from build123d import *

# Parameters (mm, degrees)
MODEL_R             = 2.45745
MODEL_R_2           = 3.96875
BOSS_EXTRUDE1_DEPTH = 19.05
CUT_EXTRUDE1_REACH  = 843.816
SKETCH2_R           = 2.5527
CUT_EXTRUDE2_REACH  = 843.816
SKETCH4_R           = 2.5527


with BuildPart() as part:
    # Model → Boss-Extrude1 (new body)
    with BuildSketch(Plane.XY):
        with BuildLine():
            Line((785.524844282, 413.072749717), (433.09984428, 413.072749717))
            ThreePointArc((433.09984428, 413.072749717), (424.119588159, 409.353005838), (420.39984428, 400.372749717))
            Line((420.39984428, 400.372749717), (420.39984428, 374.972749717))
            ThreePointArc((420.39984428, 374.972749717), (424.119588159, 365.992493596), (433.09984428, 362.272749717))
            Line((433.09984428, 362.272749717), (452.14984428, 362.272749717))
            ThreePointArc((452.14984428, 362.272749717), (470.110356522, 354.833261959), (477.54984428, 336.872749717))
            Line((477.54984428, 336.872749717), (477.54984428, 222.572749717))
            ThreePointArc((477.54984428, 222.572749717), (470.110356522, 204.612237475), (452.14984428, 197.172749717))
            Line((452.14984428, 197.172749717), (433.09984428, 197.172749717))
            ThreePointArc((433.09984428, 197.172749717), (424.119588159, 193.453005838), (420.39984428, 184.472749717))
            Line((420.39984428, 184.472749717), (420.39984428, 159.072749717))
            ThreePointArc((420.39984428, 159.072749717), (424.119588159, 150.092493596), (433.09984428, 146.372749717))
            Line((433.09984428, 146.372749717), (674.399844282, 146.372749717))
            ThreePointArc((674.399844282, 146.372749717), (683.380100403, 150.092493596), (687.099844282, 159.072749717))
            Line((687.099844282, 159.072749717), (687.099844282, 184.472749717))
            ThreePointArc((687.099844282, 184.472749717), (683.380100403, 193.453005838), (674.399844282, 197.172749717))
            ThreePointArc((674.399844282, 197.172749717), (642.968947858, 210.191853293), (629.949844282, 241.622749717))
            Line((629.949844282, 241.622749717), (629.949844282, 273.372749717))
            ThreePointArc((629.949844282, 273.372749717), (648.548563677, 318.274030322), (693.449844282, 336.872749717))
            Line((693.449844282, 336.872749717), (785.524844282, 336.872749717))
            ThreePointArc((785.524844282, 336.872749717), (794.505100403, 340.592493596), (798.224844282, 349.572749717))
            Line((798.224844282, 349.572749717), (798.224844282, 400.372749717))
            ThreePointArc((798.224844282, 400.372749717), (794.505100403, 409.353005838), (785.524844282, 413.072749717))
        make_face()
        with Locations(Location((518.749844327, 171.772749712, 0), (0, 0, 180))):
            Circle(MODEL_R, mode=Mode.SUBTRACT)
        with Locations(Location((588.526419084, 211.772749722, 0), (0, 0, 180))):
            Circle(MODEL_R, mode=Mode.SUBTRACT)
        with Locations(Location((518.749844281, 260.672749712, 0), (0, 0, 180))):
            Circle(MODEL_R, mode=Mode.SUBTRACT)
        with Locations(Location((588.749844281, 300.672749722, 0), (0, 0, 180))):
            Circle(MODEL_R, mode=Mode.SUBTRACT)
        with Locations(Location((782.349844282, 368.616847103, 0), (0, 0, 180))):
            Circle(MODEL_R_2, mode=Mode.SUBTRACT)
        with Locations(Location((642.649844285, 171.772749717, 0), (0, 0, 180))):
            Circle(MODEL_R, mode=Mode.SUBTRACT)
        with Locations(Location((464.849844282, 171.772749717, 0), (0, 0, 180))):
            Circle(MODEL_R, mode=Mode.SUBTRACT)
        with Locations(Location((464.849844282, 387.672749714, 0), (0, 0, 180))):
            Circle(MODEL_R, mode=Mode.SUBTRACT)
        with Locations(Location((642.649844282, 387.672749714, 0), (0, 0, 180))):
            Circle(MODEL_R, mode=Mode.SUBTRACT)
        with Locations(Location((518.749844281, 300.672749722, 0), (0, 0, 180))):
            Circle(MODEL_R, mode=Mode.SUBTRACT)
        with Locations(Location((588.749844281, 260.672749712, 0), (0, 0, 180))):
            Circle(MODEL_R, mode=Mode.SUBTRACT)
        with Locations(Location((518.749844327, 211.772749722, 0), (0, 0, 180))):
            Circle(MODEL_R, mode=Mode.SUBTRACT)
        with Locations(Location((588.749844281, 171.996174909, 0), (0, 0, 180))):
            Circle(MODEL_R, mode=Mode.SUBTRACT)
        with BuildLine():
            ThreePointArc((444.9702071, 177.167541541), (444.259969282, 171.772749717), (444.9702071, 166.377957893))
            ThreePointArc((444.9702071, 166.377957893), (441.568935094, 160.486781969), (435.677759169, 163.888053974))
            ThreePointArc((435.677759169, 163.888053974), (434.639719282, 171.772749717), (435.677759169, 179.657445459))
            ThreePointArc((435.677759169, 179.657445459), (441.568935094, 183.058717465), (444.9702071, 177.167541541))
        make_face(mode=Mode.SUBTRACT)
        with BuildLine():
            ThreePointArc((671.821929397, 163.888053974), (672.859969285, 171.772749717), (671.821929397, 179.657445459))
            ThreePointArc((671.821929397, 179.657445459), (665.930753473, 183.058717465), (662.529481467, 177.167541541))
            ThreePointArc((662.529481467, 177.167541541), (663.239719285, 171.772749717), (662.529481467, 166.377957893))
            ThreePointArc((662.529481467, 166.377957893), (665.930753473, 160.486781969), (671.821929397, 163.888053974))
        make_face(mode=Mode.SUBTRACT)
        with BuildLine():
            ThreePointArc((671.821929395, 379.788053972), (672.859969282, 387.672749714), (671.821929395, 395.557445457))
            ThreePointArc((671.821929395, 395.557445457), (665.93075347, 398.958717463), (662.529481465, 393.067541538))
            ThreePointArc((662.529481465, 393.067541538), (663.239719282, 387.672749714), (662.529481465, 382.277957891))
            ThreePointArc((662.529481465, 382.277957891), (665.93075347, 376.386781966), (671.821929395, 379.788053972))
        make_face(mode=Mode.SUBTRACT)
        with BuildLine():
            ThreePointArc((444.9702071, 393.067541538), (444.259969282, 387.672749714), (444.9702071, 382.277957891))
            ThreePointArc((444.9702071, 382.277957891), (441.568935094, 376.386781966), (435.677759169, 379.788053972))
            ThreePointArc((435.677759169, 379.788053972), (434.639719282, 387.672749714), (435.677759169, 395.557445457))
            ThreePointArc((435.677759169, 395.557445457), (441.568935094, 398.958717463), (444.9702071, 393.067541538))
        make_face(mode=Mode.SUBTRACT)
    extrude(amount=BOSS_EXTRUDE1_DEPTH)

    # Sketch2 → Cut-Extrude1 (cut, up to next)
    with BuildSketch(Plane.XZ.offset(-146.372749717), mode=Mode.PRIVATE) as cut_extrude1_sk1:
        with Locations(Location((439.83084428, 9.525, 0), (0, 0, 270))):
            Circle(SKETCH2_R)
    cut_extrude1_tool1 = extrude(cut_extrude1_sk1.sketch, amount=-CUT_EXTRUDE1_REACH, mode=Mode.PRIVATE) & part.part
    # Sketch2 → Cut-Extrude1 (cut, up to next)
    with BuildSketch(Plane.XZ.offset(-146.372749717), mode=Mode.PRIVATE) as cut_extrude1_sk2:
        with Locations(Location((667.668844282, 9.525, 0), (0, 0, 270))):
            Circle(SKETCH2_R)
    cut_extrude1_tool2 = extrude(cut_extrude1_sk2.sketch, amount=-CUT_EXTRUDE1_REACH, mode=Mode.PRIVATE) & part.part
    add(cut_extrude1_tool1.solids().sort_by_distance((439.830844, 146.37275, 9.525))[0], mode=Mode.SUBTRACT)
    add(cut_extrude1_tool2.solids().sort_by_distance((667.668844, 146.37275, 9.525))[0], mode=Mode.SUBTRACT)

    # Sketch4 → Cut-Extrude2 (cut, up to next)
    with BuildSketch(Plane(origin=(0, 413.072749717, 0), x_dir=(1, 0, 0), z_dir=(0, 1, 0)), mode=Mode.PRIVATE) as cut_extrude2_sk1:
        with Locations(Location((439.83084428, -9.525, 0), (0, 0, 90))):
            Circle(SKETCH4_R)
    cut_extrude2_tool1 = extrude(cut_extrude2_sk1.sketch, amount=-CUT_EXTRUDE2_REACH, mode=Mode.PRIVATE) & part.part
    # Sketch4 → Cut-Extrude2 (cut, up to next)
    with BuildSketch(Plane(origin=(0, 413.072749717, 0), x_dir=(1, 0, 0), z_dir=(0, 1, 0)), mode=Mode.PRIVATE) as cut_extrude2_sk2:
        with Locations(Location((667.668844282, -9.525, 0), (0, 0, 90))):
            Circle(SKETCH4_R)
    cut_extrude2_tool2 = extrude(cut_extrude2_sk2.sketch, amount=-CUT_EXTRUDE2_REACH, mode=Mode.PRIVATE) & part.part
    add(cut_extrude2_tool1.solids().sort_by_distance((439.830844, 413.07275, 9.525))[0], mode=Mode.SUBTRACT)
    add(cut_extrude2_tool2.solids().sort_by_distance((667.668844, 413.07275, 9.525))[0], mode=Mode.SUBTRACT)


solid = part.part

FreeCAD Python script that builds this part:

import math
import FreeCAD as App
import Part
import Sketcher
Q = App.Units.Quantity

doc = App.newDocument("Part")
body = doc.addObject("PartDesign::Body", "Body")

# Sketch on XY plane
sketch1 = body.newObject("Sketcher::SketchObject", "Sketch")
sketch1.AttachmentSupport = (doc.getObject("XY_Plane"), [""])
sketch1.MapMode = "FlatFace"
sketch1.addGeometry(Part.LineSegment(App.Vector(785.5, 413.1, 0), App.Vector(433.1, 413.1, 0)), False)
sketch1.addGeometry(Part.ArcOfCircle(Part.Circle(App.Vector(433.1, 400.4, 0), App.Vector(0, 0, 1), 12.7), math.radians(90), math.radians(180)), False)
sketch1.addGeometry(Part.LineSegment(App.Vector(420.4, 400.4, 0), App.Vector(420.4, 375, 0)), False)
sketch1.addGeometry(Part.ArcOfCircle(Part.Circle(App.Vector(433.1, 375, 0), App.Vector(0, 0, 1), 12.7), math.radians(180), math.radians(270)), False)
sketch1.addGeometry(Part.LineSegment(App.Vector(433.1, 362.3, 0), App.Vector(452.1, 362.3, 0)), False)
sketch1.addGeometry(Part.ArcOfCircle(Part.Circle(App.Vector(452.1, 336.9, 0), App.Vector(0, 0, 1), 25.4), math.radians(0), math.radians(90)), False)
sketch1.addGeometry(Part.LineSegment(App.Vector(477.5, 336.9, 0), App.Vector(477.5, 222.6, 0)), False)
sketch1.addGeometry(Part.ArcOfCircle(Part.Circle(App.Vector(452.1, 222.6, 0), App.Vector(0, 0, 1), 25.4), math.radians(-90), math.radians(0)), False)
sketch1.addGeometry(Part.LineSegment(App.Vector(452.1, 197.2, 0), App.Vector(433.1, 197.2, 0)), False)
sketch1.addGeometry(Part.ArcOfCircle(Part.Circle(App.Vector(433.1, 184.5, 0), App.Vector(0, 0, 1), 12.7), math.radians(90), math.radians(180)), False)
sketch1.addGeometry(Part.LineSegment(App.Vector(420.4, 184.5, 0), App.Vector(420.4, 159.1, 0)), False)
sketch1.addGeometry(Part.ArcOfCircle(Part.Circle(App.Vector(433.1, 159.1, 0), App.Vector(0, 0, 1), 12.7), math.radians(180), math.radians(270)), False)
sketch1.addGeometry(Part.LineSegment(App.Vector(433.1, 146.4, 0), App.Vector(674.4, 146.4, 0)), False)
sketch1.addGeometry(Part.ArcOfCircle(Part.Circle(App.Vector(674.4, 159.1, 0), App.Vector(0, 0, 1), 12.7), math.radians(-90), math.radians(0)), False)
sketch1.addGeometry(Part.LineSegment(App.Vector(687.1, 159.1, 0), App.Vector(687.1, 184.5, 0)), False)
sketch1.addGeometry(Part.ArcOfCircle(Part.Circle(App.Vector(674.4, 184.5, 0), App.Vector(0, 0, 1), 12.7), math.radians(0), math.radians(90)), False)
sketch1.addGeometry(Part.ArcOfCircle(Part.Circle(App.Vector(674.4, 241.6, 0), App.Vector(0, 0, 1), 44.4), math.radians(180), math.radians(270)), False)
sketch1.addGeometry(Part.LineSegment(App.Vector(629.9, 241.6, 0), App.Vector(629.9, 273.4, 0)), False)
sketch1.addGeometry(Part.ArcOfCircle(Part.Circle(App.Vector(693.4, 273.4, 0), App.Vector(0, 0, 1), 63.5), math.radians(90), math.radians(180)), False)
sketch1.addGeometry(Part.LineSegment(App.Vector(693.4, 336.9, 0), App.Vector(785.5, 336.9, 0)), False)
sketch1.addGeometry(Part.ArcOfCircle(Part.Circle(App.Vector(785.5, 349.6, 0), App.Vector(0, 0, 1), 12.7), math.radians(-90), math.radians(0)), False)
sketch1.addGeometry(Part.LineSegment(App.Vector(798.2, 349.6, 0), App.Vector(798.2, 400.4, 0)), False)
sketch1.addGeometry(Part.ArcOfCircle(Part.Circle(App.Vector(785.5, 400.4, 0), App.Vector(0, 0, 1), 12.7), math.radians(0), math.radians(90)), False)
sketch1.addGeometry(Part.ArcOfCircle(Part.Circle(App.Vector(440.3, 178.4, 0), App.Vector(0, 0, 1), 4.8), math.radians(-15), math.radians(165)), False)
sketch1.addGeometry(Part.ArcOfCircle(Part.Circle(App.Vector(465.1, 171.8, 0), App.Vector(0, 0, 1), 20.8), math.radians(165), math.radians(195)), False)
sketch1.addGeometry(Part.ArcOfCircle(Part.Circle(App.Vector(440.3, 165.1, 0), App.Vector(0, 0, 1), 4.8), math.radians(-165), math.radians(15)), False)
sketch1.addGeometry(Part.ArcOfCircle(Part.Circle(App.Vector(465.1, 171.8, 0), App.Vector(0, 0, 1), 30.5), math.radians(165), math.radians(195)), False)
sketch1.addGeometry(Part.Circle(App.Vector(464.8, 171.8, 0), App.Vector(0, 0, 1), 2.5), False)
sketch1.addGeometry(Part.Circle(App.Vector(518.7, 171.8, 0), App.Vector(0, 0, 1), 2.5), False)
sketch1.addGeometry(Part.Circle(App.Vector(518.7, 211.8, 0), App.Vector(0, 0, 1), 2.5), False)
sketch1.addGeometry(Part.Circle(App.Vector(588.7, 172, 0), App.Vector(0, 0, 1), 2.5), False)
sketch1.addGeometry(Part.Circle(App.Vector(588.5, 211.8, 0), App.Vector(0, 0, 1), 2.5), False)
sketch1.addGeometry(Part.Circle(App.Vector(518.7, 260.7, 0), App.Vector(0, 0, 1), 2.5), False)
sketch1.addGeometry(Part.Circle(App.Vector(588.7, 260.7, 0), App.Vector(0, 0, 1), 2.5), False)
sketch1.addGeometry(Part.Circle(App.Vector(642.6, 171.8, 0), App.Vector(0, 0, 1), 2.5), False)
sketch1.addGeometry(Part.ArcOfCircle(Part.Circle(App.Vector(642.4, 171.8, 0), App.Vector(0, 0, 1), 30.5), math.radians(-15), math.radians(15)), False)
sketch1.addGeometry(Part.ArcOfCircle(Part.Circle(App.Vector(667.2, 165.1, 0), App.Vector(0, 0, 1), 4.8), math.radians(165), math.radians(345)), False)
sketch1.addGeometry(Part.ArcOfCircle(Part.Circle(App.Vector(642.4, 171.8, 0), App.Vector(0, 0, 1), 20.8), math.radians(-15), math.radians(15)), False)
sketch1.addGeometry(Part.ArcOfCircle(Part.Circle(App.Vector(667.2, 178.4, 0), App.Vector(0, 0, 1), 4.8), math.radians(15), math.radians(195)), False)
sketch1.addGeometry(Part.Circle(App.Vector(518.7, 300.7, 0), App.Vector(0, 0, 1), 2.5), False)
sketch1.addGeometry(Part.Circle(App.Vector(588.7, 300.7, 0), App.Vector(0, 0, 1), 2.5), False)
sketch1.addGeometry(Part.ArcOfCircle(Part.Circle(App.Vector(440.3, 394.3, 0), App.Vector(0, 0, 1), 4.8), math.radians(-15), math.radians(165)), False)
sketch1.addGeometry(Part.ArcOfCircle(Part.Circle(App.Vector(465.1, 387.7, 0), App.Vector(0, 0, 1), 20.8), math.radians(165), math.radians(195)), False)
sketch1.addGeometry(Part.ArcOfCircle(Part.Circle(App.Vector(440.3, 381, 0), App.Vector(0, 0, 1), 4.8), math.radians(-165), math.radians(15)), False)
sketch1.addGeometry(Part.ArcOfCircle(Part.Circle(App.Vector(465.1, 387.7, 0), App.Vector(0, 0, 1), 30.5), math.radians(165), math.radians(195)), False)
sketch1.addGeometry(Part.Circle(App.Vector(464.8, 387.7, 0), App.Vector(0, 0, 1), 2.5), False)
sketch1.addGeometry(Part.Circle(App.Vector(642.6, 387.7, 0), App.Vector(0, 0, 1), 2.5), False)
sketch1.addGeometry(Part.ArcOfCircle(Part.Circle(App.Vector(642.4, 387.7, 0), App.Vector(0, 0, 1), 30.5), math.radians(-15), math.radians(15)), False)
sketch1.addGeometry(Part.ArcOfCircle(Part.Circle(App.Vector(667.2, 381, 0), App.Vector(0, 0, 1), 4.8), math.radians(165), math.radians(345)), False)
sketch1.addGeometry(Part.ArcOfCircle(Part.Circle(App.Vector(642.4, 387.7, 0), App.Vector(0, 0, 1), 20.8), math.radians(-15), math.radians(15)), False)
sketch1.addGeometry(Part.ArcOfCircle(Part.Circle(App.Vector(667.2, 394.3, 0), App.Vector(0, 0, 1), 4.8), math.radians(15), math.radians(195)), False)
sketch1.addGeometry(Part.Circle(App.Vector(782.3, 368.6, 0), App.Vector(0, 0, 1), 4), False)
sketch1.addConstraint(Sketcher.Constraint("Tangent", 0, 2, 1, 1))
sketch1.addConstraint(Sketcher.Constraint("Tangent", 1, 2, 2, 1))
sketch1.addConstraint(Sketcher.Constraint("Tangent", 2, 2, 3, 1))
sketch1.addConstraint(Sketcher.Constraint("Tangent", 3, 2, 4, 1))
sketch1.addConstraint(Sketcher.Constraint("Tangent", 4, 2, 5, 2))
sketch1.addConstraint(Sketcher.Constraint("Tangent", 5, 1, 6, 1))
sketch1.addConstraint(Sketcher.Constraint("Tangent", 6, 2, 7, 2))
sketch1.addConstraint(Sketcher.Constraint("Tangent", 7, 1, 8, 1))
sketch1.addConstraint(Sketcher.Constraint("Tangent", 8, 2, 9, 1))
sketch1.addConstraint(Sketcher.Constraint("Tangent", 9, 2, 10, 1))
sketch1.addConstraint(Sketcher.Constraint("Tangent", 10, 2, 11, 1))
sketch1.addConstraint(Sketcher.Constraint("Tangent", 11, 2, 12, 1))
sketch1.addConstraint(Sketcher.Constraint("Tangent", 12, 2, 13, 1))
sketch1.addConstraint(Sketcher.Constraint("Tangent", 13, 2, 14, 1))
sketch1.addConstraint(Sketcher.Constraint("Tangent", 14, 2, 15, 1))
sketch1.addConstraint(Sketcher.Constraint("Tangent", 15, 2, 16, 2))
sketch1.addConstraint(Sketcher.Constraint("Tangent", 16, 1, 17, 1))
sketch1.addConstraint(Sketcher.Constraint("Tangent", 17, 2, 18, 2))
sketch1.addConstraint(Sketcher.Constraint("Tangent", 18, 1, 19, 1))
sketch1.addConstraint(Sketcher.Constraint("Tangent", 19, 2, 20, 1))
sketch1.addConstraint(Sketcher.Constraint("Tangent", 20, 2, 21, 1))
sketch1.addConstraint(Sketcher.Constraint("Tangent", 21, 2, 22, 1))
sketch1.addConstraint(Sketcher.Constraint("Tangent", 22, 2, 0, 1))
sketch1.addConstraint(Sketcher.Constraint("Tangent", 23, 1, 24, 1))
sketch1.addConstraint(Sketcher.Constraint("Tangent", 24, 2, 25, 2))
sketch1.addConstraint(Sketcher.Constraint("Tangent", 25, 1, 26, 2))
sketch1.addConstraint(Sketcher.Constraint("Tangent", 26, 1, 23, 2))
sketch1.addConstraint(Sketcher.Constraint("Tangent", 35, 1, 36, 2))
sketch1.addConstraint(Sketcher.Constraint("Tangent", 36, 1, 37, 1))
sketch1.addConstraint(Sketcher.Constraint("Tangent", 37, 2, 38, 2))
sketch1.addConstraint(Sketcher.Constraint("Tangent", 38, 1, 35, 2))
sketch1.addConstraint(Sketcher.Constraint("Tangent", 41, 1, 42, 1))
sketch1.addConstraint(Sketcher.Constraint("Tangent", 42, 2, 43, 2))
sketch1.addConstraint(Sketcher.Constraint("Tangent", 43, 1, 44, 2))
sketch1.addConstraint(Sketcher.Constraint("Tangent", 44, 1, 41, 2))
sketch1.addConstraint(Sketcher.Constraint("Tangent", 47, 1, 48, 2))
sketch1.addConstraint(Sketcher.Constraint("Tangent", 48, 1, 49, 1))
sketch1.addConstraint(Sketcher.Constraint("Tangent", 49, 2, 50, 2))
sketch1.addConstraint(Sketcher.Constraint("Tangent", 50, 1, 47, 2))
sketch1.addConstraint(Sketcher.Constraint("Horizontal", 0))
sketch1.addConstraint(Sketcher.Constraint("Vertical", 2))
sketch1.addConstraint(Sketcher.Constraint("Horizontal", 4))
sketch1.addConstraint(Sketcher.Constraint("Vertical", 6))
sketch1.addConstraint(Sketcher.Constraint("Horizontal", 8))
sketch1.addConstraint(Sketcher.Constraint("Vertical", 10))
sketch1.addConstraint(Sketcher.Constraint("Horizontal", 12))
sketch1.addConstraint(Sketcher.Constraint("Vertical", 14))
sketch1.addConstraint(Sketcher.Constraint("Vertical", 17))
sketch1.addConstraint(Sketcher.Constraint("Horizontal", 19))
sketch1.addConstraint(Sketcher.Constraint("Vertical", 21))
sketch1.addConstraint(Sketcher.Constraint("Coincident", 26, 3, 24, 3))
sketch1.addConstraint(Sketcher.Constraint("Coincident", 37, 3, 35, 3))
sketch1.addConstraint(Sketcher.Constraint("Coincident", 44, 3, 42, 3))
sketch1.addConstraint(Sketcher.Constraint("Coincident", 49, 3, 47, 3))
sketch1.addConstraint(Sketcher.Constraint("Equal", 1, 3))
sketch1.addConstraint(Sketcher.Constraint("Equal", 5, 7))
sketch1.addConstraint(Sketcher.Constraint("Equal", 3, 9))
sketch1.addConstraint(Sketcher.Constraint("Equal", 9, 11))
sketch1.addConstraint(Sketcher.Constraint("Equal", 11, 13))
sketch1.addConstraint(Sketcher.Constraint("Equal", 13, 15))
sketch1.addConstraint(Sketcher.Constraint("Equal", 15, 20))
sketch1.addConstraint(Sketcher.Constraint("Equal", 20, 22))
sketch1.addConstraint(Sketcher.Constraint("Equal", 27, 28))
sketch1.addConstraint(Sketcher.Constraint("Equal", 28, 29))
sketch1.addConstraint(Sketcher.Constraint("Equal", 29, 30))
sketch1.addConstraint(Sketcher.Constraint("Equal", 30, 31))
sketch1.addConstraint(Sketcher.Constraint("Equal", 31, 32))
sketch1.addConstraint(Sketcher.Constraint("Equal", 32, 33))
sketch1.addConstraint(Sketcher.Constraint("Equal", 33, 34))
sketch1.addConstraint(Sketcher.Constraint("Equal", 26, 35))
sketch1.addConstraint(Sketcher.Constraint("Equal", 25, 36))
sketch1.addConstraint(Sketcher.Constraint("Equal", 34, 39))
sketch1.addConstraint(Sketcher.Constraint("Equal", 39, 40))
sketch1.addConstraint(Sketcher.Constraint("Equal", 38, 41))
sketch1.addConstraint(Sketcher.Constraint("Equal", 37, 42))
sketch1.addConstraint(Sketcher.Constraint("Equal", 40, 45))
sketch1.addConstraint(Sketcher.Constraint("Equal", 45, 46))
sketch1.addConstraint(Sketcher.Constraint("Equal", 44, 47))
sketch1.addConstraint(Sketcher.Constraint("Equal", 43, 48))
sketch1.addConstraint(Sketcher.Constraint("Horizontal", 9, 3, 15, 3))
sketch1.addConstraint(Sketcher.Constraint("Horizontal", 26, 3, 27, 3))
sketch1.addConstraint(Sketcher.Constraint("Horizontal", 27, 3, 28, 3))
sketch1.addConstraint(Sketcher.Constraint("Horizontal", 29, 3, 31, 3))
sketch1.addConstraint(Sketcher.Constraint("Horizontal", 32, 3, 33, 3))
sketch1.addConstraint(Sketcher.Constraint("Horizontal", 28, 3, 34, 3))
sketch1.addConstraint(Sketcher.Constraint("Horizontal", 34, 3, 35, 3))
sketch1.addConstraint(Sketcher.Constraint("Horizontal", 25, 3, 36, 3))
sketch1.addConstraint(Sketcher.Constraint("Horizontal", 23, 3, 38, 3))
sketch1.addConstraint(Sketcher.Constraint("Horizontal", 39, 3, 40, 3))
sketch1.addConstraint(Sketcher.Constraint("Horizontal", 44, 3, 45, 3))
sketch1.addConstraint(Sketcher.Constraint("Horizontal", 45, 3, 46, 3))
sketch1.addConstraint(Sketcher.Constraint("Horizontal", 46, 3, 47, 3))
sketch1.addConstraint(Sketcher.Constraint("Horizontal", 43, 3, 48, 3))
sketch1.addConstraint(Sketcher.Constraint("Horizontal", 41, 3, 50, 3))
sketch1.addConstraint(Sketcher.Constraint("Horizontal", 5, 1, 18, 1))
sketch1.addConstraint(Sketcher.Constraint("Vertical", 3, 3, 9, 3))
sketch1.addConstraint(Sketcher.Constraint("Vertical", 15, 3, 16, 3))
sketch1.addConstraint(Sketcher.Constraint("Vertical", 23, 3, 25, 3))
sketch1.addConstraint(Sketcher.Constraint("Vertical", 28, 3, 29, 3))
sketch1.addConstraint(Sketcher.Constraint("Vertical", 29, 3, 32, 3))
sketch1.addConstraint(Sketcher.Constraint("Vertical", 30, 3, 33, 3))
sketch1.addConstraint(Sketcher.Constraint("Vertical", 32, 3, 39, 3))
sketch1.addConstraint(Sketcher.Constraint("Vertical", 33, 3, 40, 3))
sketch1.addConstraint(Sketcher.Constraint("Vertical", 25, 3, 41, 3))
sketch1.addConstraint(Sketcher.Constraint("Vertical", 26, 3, 42, 3))
sketch1.addConstraint(Sketcher.Constraint("Vertical", 41, 3, 43, 3))
sketch1.addConstraint(Sketcher.Constraint("Vertical", 27, 3, 45, 3))
sketch1.addConstraint(Sketcher.Constraint("Vertical", 34, 3, 46, 3))
sketch1.addConstraint(Sketcher.Constraint("Vertical", 37, 3, 47, 3))
sketch1.addConstraint(Sketcher.Constraint("Equal", 2, 10))
sketch1.addConstraint(Sketcher.Constraint("Radius", 5, Q("1 in")))
sketch1.addConstraint(Sketcher.Constraint("Radius", 1, Q("0.5 in")))
sketch1.addConstraint(Sketcher.Constraint("Radius", 18, Q("2.5 in")))
sketch1.addConstraint(Sketcher.Constraint("DistanceY", 2, 2, 2, 1, Q("1 in")))
sketch1.addConstraint(Sketcher.Constraint("Radius", 16, Q("1.75 in")))
sketch1.addConstraint(Sketcher.Constraint("Diameter", 51, Q("0.3125 in")))
sketch1.addConstraint(Sketcher.Constraint("DistanceX", 12, 1, 12, 2, Q("9.5 in")))
sketch1.addConstraint(Sketcher.Constraint("DistanceY", 6, 2, 6, 1, Q("4.5 in")))
sketch1.addConstraint(Sketcher.Constraint("Diameter", 27, Q("0.1935 in")))
sketch1.addConstraint(Sketcher.Constraint("DistanceX", 4, 1, 4, 2, Q("0.75 in")))
sketch1.addConstraint(Sketcher.Constraint("DistanceX", 0, 2, 0, 1, Q("13.875 in")))
sketch1.addConstraint(Sketcher.Constraint("DistanceY", -1, 1, 23, 1, Q("6.9751001 in")))
sketch1.addConstraint(Sketcher.Constraint("DistanceY", -1, 1, 41, 1, Q("15.4751001 in")))
sketch1.addConstraint(Sketcher.Constraint("Radius", 23, 4.810125))
sketch1.addConstraint(Sketcher.Constraint("Radius", 24, 20.843875))
sketch1.addConstraint(Sketcher.Constraint("DistanceY", -1, 1, 1, 3, 400.37275))
sketch1.addConstraint(Sketcher.Constraint("DistanceY", -1, 1, 24, 3, 171.77275))
sketch1.addConstraint(Sketcher.Constraint("DistanceY", -1, 1, 29, 3, 211.77275))
sketch1.addConstraint(Sketcher.Constraint("DistanceX", -1, 1, 31, 3, 588.526419))
sketch1.addConstraint(Sketcher.Constraint("DistanceY", -1, 1, 32, 3, 260.67275))
sketch1.addConstraint(Sketcher.Constraint("DistanceY", -1, 1, 39, 3, 300.67275))
sketch1.addConstraint(Sketcher.Constraint("DistanceX", -1, 1, 25, 1, 435.677759))
sketch1.addConstraint(Sketcher.Constraint("DistanceX", -1, 1, 35, 1, 671.821929))
sketch1.addConstraint(Sketcher.Constraint("DistanceX", -1, 1, 1, 3, 433.099844))
sketch1.addConstraint(Sketcher.Constraint("DistanceX", -1, 1, 27, 3, 464.849844))
sketch1.addConstraint(Sketcher.Constraint("DistanceX", -1, 1, 28, 3, 518.749844))
sketch1.addConstraint(Sketcher.Constraint("DistanceX", -1, 1, 30, 3, 588.749844))
sketch1.addConstraint(Sketcher.Constraint("DistanceY", -1, 1, 30, 3, 171.996175))
sketch1.addConstraint(Sketcher.Constraint("DistanceX", -1, 1, 34, 3, 642.649844))
sketch1.addConstraint(Sketcher.Constraint("DistanceX", -1, 1, 51, 3, 782.349844))
sketch1.addConstraint(Sketcher.Constraint("DistanceY", -1, 1, 51, 3, 368.616847))
pad1 = body.newObject("PartDesign::Pad", "Pad")
pad1.Profile = sketch1
pad1.Length = Q("0.75 in")

# Sketch on XZ plane
sketch2 = body.newObject("Sketcher::SketchObject", "Sketch001")
sketch2.AttachmentSupport = (doc.getObject("XZ_Plane"), [""])
sketch2.MapMode = "FlatFace"
sketch2.AttachmentOffset = App.Placement(App.Vector(0, 0, -146.37275), App.Rotation())
sketch2.addGeometry(Part.Circle(App.Vector(439.8, 9.5, 0), App.Vector(0, 0, 1), 2.6), False)
sketch2.addConstraint(Sketcher.Constraint("Diameter", 0, Q("0.201 in")))
sketch2.addConstraint(Sketcher.Constraint("DistanceY", -1, 1, 0, 3, Q("0.375 in")))
sketch2.addConstraint(Sketcher.Constraint("DistanceX", -1, 1, 0, 3, 439.830844))
pocket1 = body.newObject("PartDesign::Pocket", "Pocket")
pocket1.Profile = sketch2
pocket1.Type = "UpToFirst"

# Sketch on XZ plane
sketch3 = body.newObject("Sketcher::SketchObject", "Sketch002")
sketch3.AttachmentSupport = (doc.getObject("XZ_Plane"), [""])
sketch3.MapMode = "FlatFace"
sketch3.AttachmentOffset = App.Placement(App.Vector(0, 0, -146.37275), App.Rotation())
sketch3.addGeometry(Part.Circle(App.Vector(667.7, 9.5, 0), App.Vector(0, 0, 1), 2.6), False)
sketch3.addConstraint(Sketcher.Constraint("Diameter", 0, Q("0.201 in")))
sketch3.addConstraint(Sketcher.Constraint("DistanceY", -1, 1, 0, 3, Q("0.375 in")))
sketch3.addConstraint(Sketcher.Constraint("DistanceX", -1, 1, 0, 3, 667.668844))
pocket2 = body.newObject("PartDesign::Pocket", "Pocket001")
pocket2.Profile = sketch3
pocket2.Type = "UpToFirst"

# Sketch on XZ plane
sketch4 = body.newObject("Sketcher::SketchObject", "Sketch003")
sketch4.AttachmentSupport = (doc.getObject("XZ_Plane"), [""])
sketch4.MapMode = "FlatFace"
sketch4.AttachmentOffset = App.Placement(App.Vector(0, 0, -413.07275), App.Rotation())
sketch4.addGeometry(Part.Circle(App.Vector(439.8, 9.5, 0), App.Vector(0, 0, 1), 2.6), False)
sketch4.addConstraint(Sketcher.Constraint("Diameter", 0, Q("0.201 in")))
sketch4.addConstraint(Sketcher.Constraint("DistanceY", -1, 1, 0, 3, Q("0.375 in")))
sketch4.addConstraint(Sketcher.Constraint("DistanceX", -1, 1, 0, 3, 439.830844))
pocket3 = body.newObject("PartDesign::Pocket", "Pocket002")
pocket3.Profile = sketch4
pocket3.Type = "UpToFirst"
pocket3.Reversed = True

# Sketch on XZ plane
sketch5 = body.newObject("Sketcher::SketchObject", "Sketch004")
sketch5.AttachmentSupport = (doc.getObject("XZ_Plane"), [""])
sketch5.MapMode = "FlatFace"
sketch5.AttachmentOffset = App.Placement(App.Vector(0, 0, -413.07275), App.Rotation())
sketch5.addGeometry(Part.Circle(App.Vector(667.7, 9.5, 0), App.Vector(0, 0, 1), 2.6), False)
sketch5.addConstraint(Sketcher.Constraint("Diameter", 0, Q("0.201 in")))
sketch5.addConstraint(Sketcher.Constraint("DistanceY", -1, 1, 0, 3, Q("0.375 in")))
sketch5.addConstraint(Sketcher.Constraint("DistanceX", -1, 1, 0, 3, 667.668844))
pocket4 = body.newObject("PartDesign::Pocket", "Pocket003")
pocket4.Profile = sketch5
pocket4.Type = "UpToFirst"
pocket4.Reversed = True

doc.recompute()
